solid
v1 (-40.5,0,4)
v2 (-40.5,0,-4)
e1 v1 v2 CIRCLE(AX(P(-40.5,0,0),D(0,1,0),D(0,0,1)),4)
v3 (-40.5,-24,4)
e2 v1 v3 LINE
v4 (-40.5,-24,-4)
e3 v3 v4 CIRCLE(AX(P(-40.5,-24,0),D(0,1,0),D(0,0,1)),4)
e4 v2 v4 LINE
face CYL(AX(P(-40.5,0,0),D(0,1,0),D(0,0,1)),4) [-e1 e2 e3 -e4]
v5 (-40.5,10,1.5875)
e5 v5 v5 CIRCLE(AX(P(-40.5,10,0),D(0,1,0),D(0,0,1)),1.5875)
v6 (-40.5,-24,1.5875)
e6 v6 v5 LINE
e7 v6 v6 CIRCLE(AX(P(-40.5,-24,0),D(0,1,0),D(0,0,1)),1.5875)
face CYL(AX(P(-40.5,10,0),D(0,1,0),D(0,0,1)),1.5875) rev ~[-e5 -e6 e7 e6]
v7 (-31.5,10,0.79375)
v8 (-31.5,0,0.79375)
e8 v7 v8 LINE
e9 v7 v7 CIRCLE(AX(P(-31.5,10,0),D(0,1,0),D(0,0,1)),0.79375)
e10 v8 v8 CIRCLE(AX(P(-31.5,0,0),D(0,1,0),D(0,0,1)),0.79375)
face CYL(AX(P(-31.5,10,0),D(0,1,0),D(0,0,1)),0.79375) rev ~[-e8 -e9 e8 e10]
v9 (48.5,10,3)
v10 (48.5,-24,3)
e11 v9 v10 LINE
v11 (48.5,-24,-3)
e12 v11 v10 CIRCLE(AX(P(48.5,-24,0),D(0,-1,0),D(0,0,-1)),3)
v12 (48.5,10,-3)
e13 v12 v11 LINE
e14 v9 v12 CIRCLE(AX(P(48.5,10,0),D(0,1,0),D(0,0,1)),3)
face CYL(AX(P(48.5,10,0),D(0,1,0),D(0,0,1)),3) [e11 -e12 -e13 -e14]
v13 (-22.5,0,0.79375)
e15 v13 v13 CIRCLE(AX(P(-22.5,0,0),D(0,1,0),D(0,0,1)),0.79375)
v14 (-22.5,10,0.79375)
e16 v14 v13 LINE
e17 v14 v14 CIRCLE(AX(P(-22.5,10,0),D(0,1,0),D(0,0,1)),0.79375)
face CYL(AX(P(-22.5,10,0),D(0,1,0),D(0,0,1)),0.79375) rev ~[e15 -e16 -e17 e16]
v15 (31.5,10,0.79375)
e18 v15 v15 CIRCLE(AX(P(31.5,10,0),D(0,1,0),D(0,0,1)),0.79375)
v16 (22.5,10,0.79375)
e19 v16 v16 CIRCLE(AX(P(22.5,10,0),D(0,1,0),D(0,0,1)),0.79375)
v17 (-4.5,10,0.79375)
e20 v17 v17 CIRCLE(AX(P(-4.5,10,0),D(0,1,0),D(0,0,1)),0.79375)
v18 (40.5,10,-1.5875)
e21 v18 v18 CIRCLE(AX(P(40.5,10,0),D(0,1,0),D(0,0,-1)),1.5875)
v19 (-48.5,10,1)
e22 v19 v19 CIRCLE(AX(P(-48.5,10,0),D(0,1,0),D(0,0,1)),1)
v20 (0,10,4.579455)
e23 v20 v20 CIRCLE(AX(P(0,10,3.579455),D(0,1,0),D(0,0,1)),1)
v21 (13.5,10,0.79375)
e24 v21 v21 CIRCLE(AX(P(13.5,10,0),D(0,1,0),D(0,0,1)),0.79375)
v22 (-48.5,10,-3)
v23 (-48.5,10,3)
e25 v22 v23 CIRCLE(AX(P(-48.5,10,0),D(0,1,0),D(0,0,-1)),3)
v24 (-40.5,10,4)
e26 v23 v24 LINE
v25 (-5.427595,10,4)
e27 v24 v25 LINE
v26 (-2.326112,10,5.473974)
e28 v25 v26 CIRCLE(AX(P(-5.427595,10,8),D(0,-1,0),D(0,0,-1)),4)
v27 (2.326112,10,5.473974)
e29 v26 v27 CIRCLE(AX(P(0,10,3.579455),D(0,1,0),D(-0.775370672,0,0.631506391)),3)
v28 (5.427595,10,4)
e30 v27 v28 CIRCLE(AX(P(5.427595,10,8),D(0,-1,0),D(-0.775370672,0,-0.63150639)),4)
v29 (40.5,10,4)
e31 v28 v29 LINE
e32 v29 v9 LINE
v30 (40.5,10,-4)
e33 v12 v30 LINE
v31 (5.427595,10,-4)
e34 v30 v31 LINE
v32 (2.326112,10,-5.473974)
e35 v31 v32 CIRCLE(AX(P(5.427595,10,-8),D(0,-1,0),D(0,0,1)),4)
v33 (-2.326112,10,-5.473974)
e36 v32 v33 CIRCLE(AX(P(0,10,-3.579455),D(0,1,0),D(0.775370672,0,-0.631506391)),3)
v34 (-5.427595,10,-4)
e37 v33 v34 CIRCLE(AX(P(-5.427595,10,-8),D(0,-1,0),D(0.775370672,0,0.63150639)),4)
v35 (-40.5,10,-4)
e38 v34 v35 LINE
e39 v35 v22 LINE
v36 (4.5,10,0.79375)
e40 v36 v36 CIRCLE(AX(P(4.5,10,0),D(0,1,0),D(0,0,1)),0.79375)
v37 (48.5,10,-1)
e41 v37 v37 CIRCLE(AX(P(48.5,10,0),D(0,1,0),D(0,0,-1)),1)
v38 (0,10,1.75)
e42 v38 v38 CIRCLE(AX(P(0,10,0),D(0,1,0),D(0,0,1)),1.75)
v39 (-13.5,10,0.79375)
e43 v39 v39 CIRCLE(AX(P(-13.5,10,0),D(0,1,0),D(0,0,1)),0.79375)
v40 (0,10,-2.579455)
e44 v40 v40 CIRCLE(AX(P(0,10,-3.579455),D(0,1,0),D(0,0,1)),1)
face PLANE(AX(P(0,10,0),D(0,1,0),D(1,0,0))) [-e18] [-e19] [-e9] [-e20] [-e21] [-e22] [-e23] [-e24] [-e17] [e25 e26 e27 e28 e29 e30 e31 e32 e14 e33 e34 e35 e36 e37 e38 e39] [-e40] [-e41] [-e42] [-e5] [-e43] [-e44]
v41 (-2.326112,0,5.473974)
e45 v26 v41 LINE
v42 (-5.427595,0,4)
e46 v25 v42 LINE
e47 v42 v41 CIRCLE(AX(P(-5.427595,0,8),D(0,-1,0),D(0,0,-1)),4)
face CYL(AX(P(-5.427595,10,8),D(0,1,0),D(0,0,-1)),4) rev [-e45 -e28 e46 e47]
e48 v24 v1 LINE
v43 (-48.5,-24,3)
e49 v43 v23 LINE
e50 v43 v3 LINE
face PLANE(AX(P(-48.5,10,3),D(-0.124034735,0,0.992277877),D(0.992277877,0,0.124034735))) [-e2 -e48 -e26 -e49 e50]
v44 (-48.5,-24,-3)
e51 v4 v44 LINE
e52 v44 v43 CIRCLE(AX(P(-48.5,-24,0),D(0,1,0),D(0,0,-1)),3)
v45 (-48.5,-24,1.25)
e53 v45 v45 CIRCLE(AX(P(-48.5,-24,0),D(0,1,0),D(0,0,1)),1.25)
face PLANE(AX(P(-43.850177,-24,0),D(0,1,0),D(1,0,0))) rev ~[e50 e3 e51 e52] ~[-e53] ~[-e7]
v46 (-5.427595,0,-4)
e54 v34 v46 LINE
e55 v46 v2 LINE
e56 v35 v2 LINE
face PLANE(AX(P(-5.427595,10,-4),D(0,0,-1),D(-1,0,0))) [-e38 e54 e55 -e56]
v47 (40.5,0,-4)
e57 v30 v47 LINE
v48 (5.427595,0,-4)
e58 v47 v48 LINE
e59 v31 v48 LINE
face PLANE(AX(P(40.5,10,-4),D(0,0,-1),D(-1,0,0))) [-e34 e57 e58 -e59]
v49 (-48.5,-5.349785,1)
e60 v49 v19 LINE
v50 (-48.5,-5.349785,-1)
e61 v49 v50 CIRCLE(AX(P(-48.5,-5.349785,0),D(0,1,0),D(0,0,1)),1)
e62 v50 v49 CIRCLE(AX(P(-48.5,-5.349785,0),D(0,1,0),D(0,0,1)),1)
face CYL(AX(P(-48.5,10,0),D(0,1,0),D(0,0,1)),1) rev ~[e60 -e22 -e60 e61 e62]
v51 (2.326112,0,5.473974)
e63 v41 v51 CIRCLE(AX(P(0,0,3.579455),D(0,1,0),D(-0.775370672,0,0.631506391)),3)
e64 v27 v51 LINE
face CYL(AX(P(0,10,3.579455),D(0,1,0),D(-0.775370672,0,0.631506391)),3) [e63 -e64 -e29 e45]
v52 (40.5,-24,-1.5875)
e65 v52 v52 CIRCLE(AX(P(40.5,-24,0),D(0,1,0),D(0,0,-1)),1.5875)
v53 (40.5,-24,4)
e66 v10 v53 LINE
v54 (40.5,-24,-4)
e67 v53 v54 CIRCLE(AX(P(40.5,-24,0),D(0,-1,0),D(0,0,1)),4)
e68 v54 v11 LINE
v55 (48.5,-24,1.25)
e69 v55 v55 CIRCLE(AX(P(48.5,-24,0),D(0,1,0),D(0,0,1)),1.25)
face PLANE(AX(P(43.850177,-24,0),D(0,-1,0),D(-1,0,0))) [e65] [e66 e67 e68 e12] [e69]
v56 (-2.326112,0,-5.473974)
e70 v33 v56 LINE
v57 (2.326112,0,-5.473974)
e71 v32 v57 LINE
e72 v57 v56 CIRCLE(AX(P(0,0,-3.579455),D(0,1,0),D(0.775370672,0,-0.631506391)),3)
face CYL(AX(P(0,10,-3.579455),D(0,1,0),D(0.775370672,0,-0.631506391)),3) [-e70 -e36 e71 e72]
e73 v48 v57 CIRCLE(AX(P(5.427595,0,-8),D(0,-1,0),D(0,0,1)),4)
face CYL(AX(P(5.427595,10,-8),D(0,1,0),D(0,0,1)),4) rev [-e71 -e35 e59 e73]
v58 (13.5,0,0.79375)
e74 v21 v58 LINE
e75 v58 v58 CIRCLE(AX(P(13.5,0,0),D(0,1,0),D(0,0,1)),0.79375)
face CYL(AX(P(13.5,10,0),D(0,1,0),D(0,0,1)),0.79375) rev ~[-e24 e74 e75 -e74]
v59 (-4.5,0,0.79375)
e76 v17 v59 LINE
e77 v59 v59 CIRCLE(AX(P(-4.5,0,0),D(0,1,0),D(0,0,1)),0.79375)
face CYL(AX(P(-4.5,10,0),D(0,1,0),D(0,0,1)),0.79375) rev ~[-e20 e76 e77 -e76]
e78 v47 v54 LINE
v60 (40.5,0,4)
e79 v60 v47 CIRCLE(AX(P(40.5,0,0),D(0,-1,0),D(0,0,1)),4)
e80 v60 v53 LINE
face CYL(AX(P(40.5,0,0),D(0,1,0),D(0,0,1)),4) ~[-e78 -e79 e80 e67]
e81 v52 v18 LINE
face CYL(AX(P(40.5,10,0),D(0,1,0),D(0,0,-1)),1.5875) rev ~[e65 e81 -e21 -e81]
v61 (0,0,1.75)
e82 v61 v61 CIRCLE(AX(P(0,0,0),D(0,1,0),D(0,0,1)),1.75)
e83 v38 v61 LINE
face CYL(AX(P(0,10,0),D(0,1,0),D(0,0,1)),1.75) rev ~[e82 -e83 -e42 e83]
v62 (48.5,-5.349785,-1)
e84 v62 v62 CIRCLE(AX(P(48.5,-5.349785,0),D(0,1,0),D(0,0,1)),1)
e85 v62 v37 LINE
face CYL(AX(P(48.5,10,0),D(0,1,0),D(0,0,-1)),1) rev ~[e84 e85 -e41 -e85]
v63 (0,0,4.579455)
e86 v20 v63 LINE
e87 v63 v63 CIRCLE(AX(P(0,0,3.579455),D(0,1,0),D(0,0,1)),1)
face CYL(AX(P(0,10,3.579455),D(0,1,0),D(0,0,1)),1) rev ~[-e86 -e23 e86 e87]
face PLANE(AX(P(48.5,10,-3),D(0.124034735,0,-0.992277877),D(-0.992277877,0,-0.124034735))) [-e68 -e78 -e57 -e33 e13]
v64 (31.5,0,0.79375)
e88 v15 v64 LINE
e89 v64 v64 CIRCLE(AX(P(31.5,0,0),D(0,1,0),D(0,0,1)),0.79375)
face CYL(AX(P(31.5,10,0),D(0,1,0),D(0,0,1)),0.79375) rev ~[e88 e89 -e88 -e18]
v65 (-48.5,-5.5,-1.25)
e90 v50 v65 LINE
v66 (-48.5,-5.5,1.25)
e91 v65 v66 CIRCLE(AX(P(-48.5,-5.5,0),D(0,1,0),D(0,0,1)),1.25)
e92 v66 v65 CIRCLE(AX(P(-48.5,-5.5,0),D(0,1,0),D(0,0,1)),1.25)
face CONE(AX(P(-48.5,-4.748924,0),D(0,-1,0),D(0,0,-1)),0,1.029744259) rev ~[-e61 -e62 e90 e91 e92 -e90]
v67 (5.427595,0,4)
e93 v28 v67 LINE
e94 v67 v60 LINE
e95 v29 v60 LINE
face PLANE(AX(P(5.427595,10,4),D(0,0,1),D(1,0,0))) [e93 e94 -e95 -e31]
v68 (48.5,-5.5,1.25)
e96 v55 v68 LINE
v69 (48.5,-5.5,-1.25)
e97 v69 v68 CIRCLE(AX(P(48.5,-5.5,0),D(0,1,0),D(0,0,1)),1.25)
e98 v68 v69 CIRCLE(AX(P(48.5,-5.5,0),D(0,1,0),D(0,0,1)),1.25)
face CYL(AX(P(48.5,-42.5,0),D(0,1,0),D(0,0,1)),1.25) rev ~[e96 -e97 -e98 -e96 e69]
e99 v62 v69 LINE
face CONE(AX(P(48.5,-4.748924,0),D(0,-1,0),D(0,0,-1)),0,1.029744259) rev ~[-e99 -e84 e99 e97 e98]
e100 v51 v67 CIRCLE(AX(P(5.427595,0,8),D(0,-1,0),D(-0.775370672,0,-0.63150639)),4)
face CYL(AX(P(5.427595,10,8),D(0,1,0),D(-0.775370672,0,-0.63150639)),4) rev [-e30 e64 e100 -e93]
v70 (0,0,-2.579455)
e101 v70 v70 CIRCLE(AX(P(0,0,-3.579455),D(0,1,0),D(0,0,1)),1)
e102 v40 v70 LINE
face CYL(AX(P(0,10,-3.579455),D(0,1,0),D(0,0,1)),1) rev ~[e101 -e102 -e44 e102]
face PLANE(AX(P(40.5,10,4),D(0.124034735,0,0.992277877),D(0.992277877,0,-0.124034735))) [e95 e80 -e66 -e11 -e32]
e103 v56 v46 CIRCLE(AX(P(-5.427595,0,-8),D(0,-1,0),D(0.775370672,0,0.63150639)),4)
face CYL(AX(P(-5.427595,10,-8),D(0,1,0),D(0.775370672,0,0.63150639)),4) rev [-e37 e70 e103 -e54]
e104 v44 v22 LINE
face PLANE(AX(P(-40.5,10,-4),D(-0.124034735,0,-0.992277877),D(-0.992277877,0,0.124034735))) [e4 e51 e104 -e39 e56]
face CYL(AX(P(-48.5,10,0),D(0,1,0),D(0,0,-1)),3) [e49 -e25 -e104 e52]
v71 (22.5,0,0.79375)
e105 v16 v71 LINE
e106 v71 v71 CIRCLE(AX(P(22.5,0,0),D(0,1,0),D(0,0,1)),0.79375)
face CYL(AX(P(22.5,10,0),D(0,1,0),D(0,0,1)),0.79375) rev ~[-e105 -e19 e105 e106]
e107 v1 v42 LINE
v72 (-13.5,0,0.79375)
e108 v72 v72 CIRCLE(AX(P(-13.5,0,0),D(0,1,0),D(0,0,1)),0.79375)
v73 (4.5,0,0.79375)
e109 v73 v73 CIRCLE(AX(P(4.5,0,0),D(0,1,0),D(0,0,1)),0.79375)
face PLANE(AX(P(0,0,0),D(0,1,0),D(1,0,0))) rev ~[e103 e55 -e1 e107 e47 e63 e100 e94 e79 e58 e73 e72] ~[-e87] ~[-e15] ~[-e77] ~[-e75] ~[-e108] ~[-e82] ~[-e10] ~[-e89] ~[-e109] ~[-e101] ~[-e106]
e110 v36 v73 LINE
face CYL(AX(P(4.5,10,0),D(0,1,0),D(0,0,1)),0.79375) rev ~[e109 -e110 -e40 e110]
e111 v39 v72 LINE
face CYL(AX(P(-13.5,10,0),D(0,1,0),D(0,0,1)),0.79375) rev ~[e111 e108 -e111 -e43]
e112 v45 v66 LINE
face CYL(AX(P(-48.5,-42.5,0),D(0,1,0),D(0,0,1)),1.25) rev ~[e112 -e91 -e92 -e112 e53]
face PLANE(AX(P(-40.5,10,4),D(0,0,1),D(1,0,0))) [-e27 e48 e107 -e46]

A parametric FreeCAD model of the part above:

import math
import FreeCAD as App
import Part
import Sketcher

doc = App.newDocument("Part")
body = doc.addObject("PartDesign::Body", "Body")

# Sketch on XZ plane
sketch1 = body.newObject("Sketcher::SketchObject", "Sketch")
sketch1.AttachmentSupport = (doc.getObject("XZ_Plane"), [""])
sketch1.MapMode = "FlatFace"
sketch1.addGeometry([
    Part.LineSegment(App.Vector(-40.5, -4, 0), App.Vector(-48.5, -3, 0)),  # 0
    Part.ArcOfCircle(Part.Circle(App.Vector(-48.5, 0, 0), App.Vector(0, 0, 1), 3), math.radians(90), math.radians(270)),  # 1
    Part.LineSegment(App.Vector(-48.5, 3, 0), App.Vector(-40.5, 4, 0)),  # 2
    Part.ArcOfCircle(Part.Circle(App.Vector(-40.5, 0, 0), App.Vector(0, 0, 1), 4), math.radians(-90), math.radians(90)),  # 3
    Part.Circle(App.Vector(-48.5, 0, 0), App.Vector(0, 0, 1), 1),  # 4
    Part.Circle(App.Vector(-40.5, 0, 0), App.Vector(0, 0, 1), 1.6),  # 5
], False)
sketch1.addConstraint([
    Sketcher.Constraint("Coincident", 0, 2, 1, 2),
    Sketcher.Constraint("Coincident", 1, 1, 2, 1),
    Sketcher.Constraint("Coincident", 2, 2, 3, 2),
    Sketcher.Constraint("Coincident", 3, 1, 0, 1),
    Sketcher.Constraint("Coincident", 4, 3, 1, 3),
    Sketcher.Constraint("Coincident", 5, 3, 3, 3),
    Sketcher.Constraint("Symmetric", 0, 2, 1, 1, -1),
    Sketcher.Constraint("Symmetric", 2, 2, 3, 1, -1),
    Sketcher.Constraint("Vertical", 4, 3, 0, 2),
    Sketcher.Constraint("Vertical", 5, 3, 2, 2),
    Sketcher.Constraint("Diameter", 4, 2.0),
    Sketcher.Constraint("Radius", 1, 3.0),
    Sketcher.Constraint("Radius", 3, 4.0),
    Sketcher.Constraint("Diameter", 5, 3.175),
    Sketcher.Constraint("DistanceX", 1, 3, 3, 3, 8.0),
    Sketcher.Constraint("DistanceX", 1, 3, -1, 1, 48.5),
])
pad1 = body.newObject("PartDesign::Pad", "Pad")
pad1.Profile = sketch1
pad1.Length = 24
body2 = doc.addObject("PartDesign::Body", "Body001")

# Sketch on XZ plane
sketch2 = body2.newObject("Sketcher::SketchObject", "Sketch001")
sketch2.AttachmentSupport = (doc.getObject("XZ_Plane001"), [""])
sketch2.MapMode = "FlatFace"
sketch2.addGeometry([
    Part.LineSegment(App.Vector(40.5, 4, 0), App.Vector(48.5, 3, 0)),  # 0
    Part.ArcOfCircle(Part.Circle(App.Vector(48.5, 0, 0), App.Vector(0, 0, 1), 3), math.radians(-90), math.radians(90)),  # 1
    Part.LineSegment(App.Vector(48.5, -3, 0), App.Vector(40.5, -4, 0)),  # 2
    Part.ArcOfCircle(Part.Circle(App.Vector(40.5, 0, 0), App.Vector(0, 0, 1), 4), math.radians(90), math.radians(270)),  # 3
    Part.Circle(App.Vector(48.5, 0, 0), App.Vector(0, 0, 1), 1),  # 4
    Part.Circle(App.Vector(40.5, 0, 0), App.Vector(0, 0, 1), 1.6),  # 5
], False)
sketch2.addConstraint([
    Sketcher.Constraint("Coincident", 0, 2, 1, 2),
    Sketcher.Constraint("Coincident", 1, 1, 2, 1),
    Sketcher.Constraint("Coincident", 2, 2, 3, 2),
    Sketcher.Constraint("Coincident", 3, 1, 0, 1),
    Sketcher.Constraint("Coincident", 4, 3, 1, 3),
    Sketcher.Constraint("Coincident", 5, 3, 3, 3),
    Sketcher.Constraint("Symmetric", 0, 2, 1, 1, -1),
    Sketcher.Constraint("Symmetric", 2, 2, 3, 1, -1),
    Sketcher.Constraint("Vertical", 4, 3, 0, 2),
    Sketcher.Constraint("Vertical", 5, 3, 2, 2),
    Sketcher.Constraint("Diameter", 4, 2.0),
    Sketcher.Constraint("Radius", 1, 3.0),
    Sketcher.Constraint("Radius", 3, 4.0),
    Sketcher.Constraint("Diameter", 5, 3.175),
    Sketcher.Constraint("DistanceX", 3, 3, 1, 3, 8.0),
    Sketcher.Constraint("DistanceX", -1, 1, 1, 3, 48.5),
])
pad2 = body2.newObject("PartDesign::Pad", "Pad001")
pad2.Profile = sketch2
pad2.Length = 24
body.AllowCompound = True
doc.recompute()

boolean = body.newObject("PartDesign::Boolean", "Boolean")
boolean.Type = "Fuse"
boolean.addObjects([body2])

# Sketch on XZ plane
sketch3 = body.newObject("Sketcher::SketchObject", "Sketch002")
sketch3.AttachmentSupport = (doc.getObject("XZ_Plane"), [""])
sketch3.MapMode = "FlatFace"
sketch3.AttachmentOffset = App.Placement(App.Vector(0, 0, -10), App.Rotation())
sketch3.addGeometry([
    Part.LineSegment(App.Vector(-40.5, -4, 0), App.Vector(-48.5, -3, 0)),  # 0
    Part.ArcOfCircle(Part.Circle(App.Vector(-48.5, 0, 0), App.Vector(0, 0, 1), 3), math.radians(90), math.radians(270)),  # 1
    Part.LineSegment(App.Vector(-48.5, 3, 0), App.Vector(-40.5, 4, 0)),  # 2
    Part.LineSegment(App.Vector(-40.5, 4, 0), App.Vector(-5.4, 4, 0)),  # 3
    Part.ArcOfCircle(Part.Circle(App.Vector(-5.4, 8, 0), App.Vector(0, 0, 1), 4), math.radians(-90), math.radians(-39)),  # 4
    Part.ArcOfCircle(Part.Circle(App.Vector(0, 3.6, 0), App.Vector(0, 0, 1), 3), math.radians(39), math.radians(141)),  # 5
    Part.ArcOfCircle(Part.Circle(App.Vector(5.4, 8, 0), App.Vector(0, 0, 1), 4), math.radians(-141), math.radians(-90)),  # 6
    Part.LineSegment(App.Vector(5.4, 4, 0), App.Vector(40.5, 4, 0)),  # 7
    Part.LineSegment(App.Vector(40.5, 4, 0), App.Vector(48.5, 3, 0)),  # 8
    Part.ArcOfCircle(Part.Circle(App.Vector(48.5, 0, 0), App.Vector(0, 0, 1), 3), math.radians(-90), math.radians(90)),  # 9
    Part.LineSegment(App.Vector(48.5, -3, 0), App.Vector(40.5, -4, 0)),  # 10
    Part.LineSegment(App.Vector(40.5, -4, 0), App.Vector(5.4, -4, 0)),  # 11
    Part.ArcOfCircle(Part.Circle(App.Vector(5.4, -8, 0), App.Vector(0, 0, 1), 4), math.radians(90), math.radians(141)),  # 12
    Part.ArcOfCircle(Part.Circle(App.Vector(0, -3.6, 0), App.Vector(0, 0, 1), 3), math.radians(-141), math.radians(-39)),  # 13
    Part.ArcOfCircle(Part.Circle(App.Vector(-5.4, -8, 0), App.Vector(0, 0, 1), 4), math.radians(39), math.radians(90)),  # 14
    Part.LineSegment(App.Vector(-5.4, -4, 0), App.Vector(-40.5, -4, 0)),  # 15
    Part.Circle(App.Vector(0, 3.6, 0), App.Vector(0, 0, 1), 1),  # 16
    Part.Circle(App.Vector(-48.5, 0, 0), App.Vector(0, 0, 1), 1),  # 17
    Part.Circle(App.Vector(-40.5, 0, 0), App.Vector(0, 0, 1), 1.6),  # 18
    Part.Circle(App.Vector(-31.5, 0, 0), App.Vector(0, 0, 1), 0.8),  # 19
    Part.Circle(App.Vector(-22.5, 0, 0), App.Vector(0, 0, 1), 0.8),  # 20
    Part.Circle(App.Vector(-13.5, 0, 0), App.Vector(0, 0, 1), 0.8),  # 21
    Part.Circle(App.Vector(-4.5, 0, 0), App.Vector(0, 0, 1), 0.8),  # 22
    Part.Circle(App.Vector(0, 0, 0), App.Vector(0, 0, 1), 1.8),  # 23
    Part.Circle(App.Vector(4.5, 0, 0), App.Vector(0, 0, 1), 0.8),  # 24
    Part.Circle(App.Vector(13.5, 0, 0), App.Vector(0, 0, 1), 0.8),  # 25
    Part.Circle(App.Vector(22.5, 0, 0), App.Vector(0, 0, 1), 0.8),  # 26
    Part.Circle(App.Vector(31.5, 0, 0), App.Vector(0, 0, 1), 0.8),  # 27
    Part.Circle(App.Vector(40.5, 0, 0), App.Vector(0, 0, 1), 1.6),  # 28
    Part.Circle(App.Vector(48.5, 0, 0), App.Vector(0, 0, 1), 1),  # 29
    Part.Circle(App.Vector(0, -3.6, 0), App.Vector(0, 0, 1), 1),  # 30
], False)
sketch3.addConstraint([
    Sketcher.Constraint("Coincident", 0, 2, 1, 2),
    Sketcher.Constraint("Coincident", 1, 1, 2, 1),
    Sketcher.Constraint("Coincident", 2, 2, 3, 1),
    Sketcher.Constraint("Tangent", 3, 2, 4, 1),
    Sketcher.Constraint("Tangent", 4, 2, 5, 2),
    Sketcher.Constraint("Tangent", 5, 1, 6, 1),
    Sketcher.Constraint("Tangent", 6, 2, 7, 1),
    Sketcher.Constraint("Coincident", 7, 2, 8, 1),
    Sketcher.Constraint("Coincident", 8, 2, 9, 2),
    Sketcher.Constraint("Coincident", 9, 1, 10, 1),
    Sketcher.Constraint("Coincident", 10, 2, 11, 1),
    Sketcher.Constraint("Tangent", 11, 2, 12, 1),
    Sketcher.Constraint("Tangent", 12, 2, 13, 2),
    Sketcher.Constraint("Tangent", 13, 1, 14, 1),
    Sketcher.Constraint("Tangent", 14, 2, 15, 1),
    Sketcher.Constraint("Coincident", 15, 2, 0, 1),
    Sketcher.Constraint("Horizontal", 3),
    Sketcher.Constraint("Horizontal", 7),
    Sketcher.Constraint("Horizontal", 11),
    Sketcher.Constraint("Horizontal", 15),
    Sketcher.Constraint("Coincident", 23, 3, -1, 1),
    Sketcher.Constraint("Coincident", 16, 3, 5, 3),
    Sketcher.Constraint("Coincident", 17, 3, 1, 3),
    Sketcher.Constraint("Coincident", 29, 3, 9, 3),
    Sketcher.Constraint("Coincident", 30, 3, 13, 3),
    Sketcher.Constraint("Equal", 1, 5),
    Sketcher.Constraint("Equal", 4, 6),
    Sketcher.Constraint("Equal", 5, 9),
    Sketcher.Constraint("Equal", 6, 12),
    Sketcher.Constraint("Equal", 9, 13),
    Sketcher.Constraint("Equal", 12, 14),
    Sketcher.Constraint("Equal", 16, 17),
    Sketcher.Constraint("Equal", 19, 20),
    Sketcher.Constraint("Equal", 20, 21),
    Sketcher.Constraint("Equal", 21, 22),
    Sketcher.Constraint("Equal", 22, 24),
    Sketcher.Constraint("Equal", 24, 25),
    Sketcher.Constraint("Equal", 25, 26),
    Sketcher.Constraint("Equal", 26, 27),
    Sketcher.Constraint("Equal", 18, 28),
    Sketcher.Constraint("Equal", 17, 29),
    Sketcher.Constraint("Equal", 29, 30),
    Sketcher.Constraint("Symmetric", 1, 3, 9, 3, -1, 1),
    Sketcher.Constraint("Symmetric", 4, 3, 12, 3, -1, 1),
    Sketcher.Constraint("Symmetric", 6, 3, 14, 3, -1, 1),
    Sketcher.Constraint("Symmetric", 22, 3, 24, 3, -1, 1),
    Sketcher.Constraint("Symmetric", 21, 3, 25, 3, -1, 1),
    Sketcher.Constraint("Symmetric", 20, 3, 26, 3, -1, 1),
    Sketcher.Constraint("Symmetric", 19, 3, 27, 3, -1, 1),
    Sketcher.Constraint("Symmetric", 18, 3, 28, 3, -1, 1),
    Sketcher.Constraint("Symmetric", 4, 3, 6, 3, -2),
    Sketcher.Constraint("Symmetric", 1, 1, 8, 2, -2),
    Sketcher.Constraint("PointOnObject", 18, 3, -1),
    Sketcher.Constraint("PointOnObject", 19, 3, -1),
    Sketcher.Constraint("PointOnObject", 20, 3, -1),
    Sketcher.Constraint("PointOnObject", 21, 3, -1),
    Sketcher.Constraint("PointOnObject", 22, 3, -1),
    Sketcher.Constraint("Parallel", 0, 8),
    Sketcher.Constraint("Parallel", 2, 10),
    Sketcher.Constraint("Vertical", 17, 3, 0, 2),
    Sketcher.Constraint("Vertical", 0, 2, 1, 1),
    Sketcher.Constraint("Vertical", 18, 3, 2, 2),
    Sketcher.Constraint("Vertical", 28, 3, 7, 2),
    Sketcher.Constraint("Vertical", 8, 2, 9, 1),
    Sketcher.Constraint("Diameter", 16, 2.0),
    Sketcher.Constraint("Radius", 1, 3.0),
    Sketcher.Constraint("Radius", 4, 4.0),
    Sketcher.Constraint("Diameter", 23, 3.5),
    Sketcher.Constraint("Diameter", 18, 3.175),
    Sketcher.Constraint("DistanceY", -1, 1, 4, 3, 8.0),
    Sketcher.Constraint("DistanceX", 1, 3, 9, 3, 97.0),
    Sketcher.Constraint("DistanceX", 1, 3, 18, 3, 8.0),
    Sketcher.Constraint("DistanceX", 18, 3, 19, 3, 9.0),
    Sketcher.Constraint("DistanceX", 19, 3, 20, 3, 9.0),
    Sketcher.Constraint("DistanceX", 20, 3, 21, 3, 9.0),
    Sketcher.Constraint("DistanceX", 24, 3, 25, 3, 9.0),
    Sketcher.Constraint("Diameter", 19, 1.5875),
    Sketcher.Constraint("DistanceX", 3, 1, 3, 2, 35.072405),
])
pad3 = body.newObject("PartDesign::Pad", "Pad002")
pad3.Profile = sketch3
pad3.Length = 10

# Sketch on XZ plane
sketch4 = body.newObject("Sketcher::SketchObject", "Sketch003")
sketch4.AttachmentSupport = (doc.getObject("XZ_Plane"), [""])
sketch4.MapMode = "FlatFace"
sketch4.AttachmentOffset = App.Placement(App.Vector(0, 0, 24), App.Rotation())
sketch4.addGeometry([
    Part.Circle(App.Vector(-48.5, 0, 0), App.Vector(0, 0, 1), 1.2),
    Part.Circle(App.Vector(48.5, 0, 0), App.Vector(0, 0, 1), 1.2),
], False)
sketch4.addConstraint([
    Sketcher.Constraint("Equal", 0, 1),
    Sketcher.Constraint("Symmetric", 0, 3, 1, 3, -1, 1),
    Sketcher.Constraint("PointOnObject", 0, 3, -1),
    Sketcher.Constraint("Diameter", 0, 2.5),
    Sketcher.Constraint("DistanceX", 0, 3, 1, 3, 97.0),
])
doc.recompute()
hole = body.newObject("PartDesign::Hole", "Hole")
hole.Profile = sketch4
hole.ThreadType = "None"
hole.Diameter = 2.5
hole.DepthType = "Dimension"
hole.Depth = 18.5
hole.DrillPoint = "Angled"
hole.DrillPointAngle = 118

doc.recompute()
